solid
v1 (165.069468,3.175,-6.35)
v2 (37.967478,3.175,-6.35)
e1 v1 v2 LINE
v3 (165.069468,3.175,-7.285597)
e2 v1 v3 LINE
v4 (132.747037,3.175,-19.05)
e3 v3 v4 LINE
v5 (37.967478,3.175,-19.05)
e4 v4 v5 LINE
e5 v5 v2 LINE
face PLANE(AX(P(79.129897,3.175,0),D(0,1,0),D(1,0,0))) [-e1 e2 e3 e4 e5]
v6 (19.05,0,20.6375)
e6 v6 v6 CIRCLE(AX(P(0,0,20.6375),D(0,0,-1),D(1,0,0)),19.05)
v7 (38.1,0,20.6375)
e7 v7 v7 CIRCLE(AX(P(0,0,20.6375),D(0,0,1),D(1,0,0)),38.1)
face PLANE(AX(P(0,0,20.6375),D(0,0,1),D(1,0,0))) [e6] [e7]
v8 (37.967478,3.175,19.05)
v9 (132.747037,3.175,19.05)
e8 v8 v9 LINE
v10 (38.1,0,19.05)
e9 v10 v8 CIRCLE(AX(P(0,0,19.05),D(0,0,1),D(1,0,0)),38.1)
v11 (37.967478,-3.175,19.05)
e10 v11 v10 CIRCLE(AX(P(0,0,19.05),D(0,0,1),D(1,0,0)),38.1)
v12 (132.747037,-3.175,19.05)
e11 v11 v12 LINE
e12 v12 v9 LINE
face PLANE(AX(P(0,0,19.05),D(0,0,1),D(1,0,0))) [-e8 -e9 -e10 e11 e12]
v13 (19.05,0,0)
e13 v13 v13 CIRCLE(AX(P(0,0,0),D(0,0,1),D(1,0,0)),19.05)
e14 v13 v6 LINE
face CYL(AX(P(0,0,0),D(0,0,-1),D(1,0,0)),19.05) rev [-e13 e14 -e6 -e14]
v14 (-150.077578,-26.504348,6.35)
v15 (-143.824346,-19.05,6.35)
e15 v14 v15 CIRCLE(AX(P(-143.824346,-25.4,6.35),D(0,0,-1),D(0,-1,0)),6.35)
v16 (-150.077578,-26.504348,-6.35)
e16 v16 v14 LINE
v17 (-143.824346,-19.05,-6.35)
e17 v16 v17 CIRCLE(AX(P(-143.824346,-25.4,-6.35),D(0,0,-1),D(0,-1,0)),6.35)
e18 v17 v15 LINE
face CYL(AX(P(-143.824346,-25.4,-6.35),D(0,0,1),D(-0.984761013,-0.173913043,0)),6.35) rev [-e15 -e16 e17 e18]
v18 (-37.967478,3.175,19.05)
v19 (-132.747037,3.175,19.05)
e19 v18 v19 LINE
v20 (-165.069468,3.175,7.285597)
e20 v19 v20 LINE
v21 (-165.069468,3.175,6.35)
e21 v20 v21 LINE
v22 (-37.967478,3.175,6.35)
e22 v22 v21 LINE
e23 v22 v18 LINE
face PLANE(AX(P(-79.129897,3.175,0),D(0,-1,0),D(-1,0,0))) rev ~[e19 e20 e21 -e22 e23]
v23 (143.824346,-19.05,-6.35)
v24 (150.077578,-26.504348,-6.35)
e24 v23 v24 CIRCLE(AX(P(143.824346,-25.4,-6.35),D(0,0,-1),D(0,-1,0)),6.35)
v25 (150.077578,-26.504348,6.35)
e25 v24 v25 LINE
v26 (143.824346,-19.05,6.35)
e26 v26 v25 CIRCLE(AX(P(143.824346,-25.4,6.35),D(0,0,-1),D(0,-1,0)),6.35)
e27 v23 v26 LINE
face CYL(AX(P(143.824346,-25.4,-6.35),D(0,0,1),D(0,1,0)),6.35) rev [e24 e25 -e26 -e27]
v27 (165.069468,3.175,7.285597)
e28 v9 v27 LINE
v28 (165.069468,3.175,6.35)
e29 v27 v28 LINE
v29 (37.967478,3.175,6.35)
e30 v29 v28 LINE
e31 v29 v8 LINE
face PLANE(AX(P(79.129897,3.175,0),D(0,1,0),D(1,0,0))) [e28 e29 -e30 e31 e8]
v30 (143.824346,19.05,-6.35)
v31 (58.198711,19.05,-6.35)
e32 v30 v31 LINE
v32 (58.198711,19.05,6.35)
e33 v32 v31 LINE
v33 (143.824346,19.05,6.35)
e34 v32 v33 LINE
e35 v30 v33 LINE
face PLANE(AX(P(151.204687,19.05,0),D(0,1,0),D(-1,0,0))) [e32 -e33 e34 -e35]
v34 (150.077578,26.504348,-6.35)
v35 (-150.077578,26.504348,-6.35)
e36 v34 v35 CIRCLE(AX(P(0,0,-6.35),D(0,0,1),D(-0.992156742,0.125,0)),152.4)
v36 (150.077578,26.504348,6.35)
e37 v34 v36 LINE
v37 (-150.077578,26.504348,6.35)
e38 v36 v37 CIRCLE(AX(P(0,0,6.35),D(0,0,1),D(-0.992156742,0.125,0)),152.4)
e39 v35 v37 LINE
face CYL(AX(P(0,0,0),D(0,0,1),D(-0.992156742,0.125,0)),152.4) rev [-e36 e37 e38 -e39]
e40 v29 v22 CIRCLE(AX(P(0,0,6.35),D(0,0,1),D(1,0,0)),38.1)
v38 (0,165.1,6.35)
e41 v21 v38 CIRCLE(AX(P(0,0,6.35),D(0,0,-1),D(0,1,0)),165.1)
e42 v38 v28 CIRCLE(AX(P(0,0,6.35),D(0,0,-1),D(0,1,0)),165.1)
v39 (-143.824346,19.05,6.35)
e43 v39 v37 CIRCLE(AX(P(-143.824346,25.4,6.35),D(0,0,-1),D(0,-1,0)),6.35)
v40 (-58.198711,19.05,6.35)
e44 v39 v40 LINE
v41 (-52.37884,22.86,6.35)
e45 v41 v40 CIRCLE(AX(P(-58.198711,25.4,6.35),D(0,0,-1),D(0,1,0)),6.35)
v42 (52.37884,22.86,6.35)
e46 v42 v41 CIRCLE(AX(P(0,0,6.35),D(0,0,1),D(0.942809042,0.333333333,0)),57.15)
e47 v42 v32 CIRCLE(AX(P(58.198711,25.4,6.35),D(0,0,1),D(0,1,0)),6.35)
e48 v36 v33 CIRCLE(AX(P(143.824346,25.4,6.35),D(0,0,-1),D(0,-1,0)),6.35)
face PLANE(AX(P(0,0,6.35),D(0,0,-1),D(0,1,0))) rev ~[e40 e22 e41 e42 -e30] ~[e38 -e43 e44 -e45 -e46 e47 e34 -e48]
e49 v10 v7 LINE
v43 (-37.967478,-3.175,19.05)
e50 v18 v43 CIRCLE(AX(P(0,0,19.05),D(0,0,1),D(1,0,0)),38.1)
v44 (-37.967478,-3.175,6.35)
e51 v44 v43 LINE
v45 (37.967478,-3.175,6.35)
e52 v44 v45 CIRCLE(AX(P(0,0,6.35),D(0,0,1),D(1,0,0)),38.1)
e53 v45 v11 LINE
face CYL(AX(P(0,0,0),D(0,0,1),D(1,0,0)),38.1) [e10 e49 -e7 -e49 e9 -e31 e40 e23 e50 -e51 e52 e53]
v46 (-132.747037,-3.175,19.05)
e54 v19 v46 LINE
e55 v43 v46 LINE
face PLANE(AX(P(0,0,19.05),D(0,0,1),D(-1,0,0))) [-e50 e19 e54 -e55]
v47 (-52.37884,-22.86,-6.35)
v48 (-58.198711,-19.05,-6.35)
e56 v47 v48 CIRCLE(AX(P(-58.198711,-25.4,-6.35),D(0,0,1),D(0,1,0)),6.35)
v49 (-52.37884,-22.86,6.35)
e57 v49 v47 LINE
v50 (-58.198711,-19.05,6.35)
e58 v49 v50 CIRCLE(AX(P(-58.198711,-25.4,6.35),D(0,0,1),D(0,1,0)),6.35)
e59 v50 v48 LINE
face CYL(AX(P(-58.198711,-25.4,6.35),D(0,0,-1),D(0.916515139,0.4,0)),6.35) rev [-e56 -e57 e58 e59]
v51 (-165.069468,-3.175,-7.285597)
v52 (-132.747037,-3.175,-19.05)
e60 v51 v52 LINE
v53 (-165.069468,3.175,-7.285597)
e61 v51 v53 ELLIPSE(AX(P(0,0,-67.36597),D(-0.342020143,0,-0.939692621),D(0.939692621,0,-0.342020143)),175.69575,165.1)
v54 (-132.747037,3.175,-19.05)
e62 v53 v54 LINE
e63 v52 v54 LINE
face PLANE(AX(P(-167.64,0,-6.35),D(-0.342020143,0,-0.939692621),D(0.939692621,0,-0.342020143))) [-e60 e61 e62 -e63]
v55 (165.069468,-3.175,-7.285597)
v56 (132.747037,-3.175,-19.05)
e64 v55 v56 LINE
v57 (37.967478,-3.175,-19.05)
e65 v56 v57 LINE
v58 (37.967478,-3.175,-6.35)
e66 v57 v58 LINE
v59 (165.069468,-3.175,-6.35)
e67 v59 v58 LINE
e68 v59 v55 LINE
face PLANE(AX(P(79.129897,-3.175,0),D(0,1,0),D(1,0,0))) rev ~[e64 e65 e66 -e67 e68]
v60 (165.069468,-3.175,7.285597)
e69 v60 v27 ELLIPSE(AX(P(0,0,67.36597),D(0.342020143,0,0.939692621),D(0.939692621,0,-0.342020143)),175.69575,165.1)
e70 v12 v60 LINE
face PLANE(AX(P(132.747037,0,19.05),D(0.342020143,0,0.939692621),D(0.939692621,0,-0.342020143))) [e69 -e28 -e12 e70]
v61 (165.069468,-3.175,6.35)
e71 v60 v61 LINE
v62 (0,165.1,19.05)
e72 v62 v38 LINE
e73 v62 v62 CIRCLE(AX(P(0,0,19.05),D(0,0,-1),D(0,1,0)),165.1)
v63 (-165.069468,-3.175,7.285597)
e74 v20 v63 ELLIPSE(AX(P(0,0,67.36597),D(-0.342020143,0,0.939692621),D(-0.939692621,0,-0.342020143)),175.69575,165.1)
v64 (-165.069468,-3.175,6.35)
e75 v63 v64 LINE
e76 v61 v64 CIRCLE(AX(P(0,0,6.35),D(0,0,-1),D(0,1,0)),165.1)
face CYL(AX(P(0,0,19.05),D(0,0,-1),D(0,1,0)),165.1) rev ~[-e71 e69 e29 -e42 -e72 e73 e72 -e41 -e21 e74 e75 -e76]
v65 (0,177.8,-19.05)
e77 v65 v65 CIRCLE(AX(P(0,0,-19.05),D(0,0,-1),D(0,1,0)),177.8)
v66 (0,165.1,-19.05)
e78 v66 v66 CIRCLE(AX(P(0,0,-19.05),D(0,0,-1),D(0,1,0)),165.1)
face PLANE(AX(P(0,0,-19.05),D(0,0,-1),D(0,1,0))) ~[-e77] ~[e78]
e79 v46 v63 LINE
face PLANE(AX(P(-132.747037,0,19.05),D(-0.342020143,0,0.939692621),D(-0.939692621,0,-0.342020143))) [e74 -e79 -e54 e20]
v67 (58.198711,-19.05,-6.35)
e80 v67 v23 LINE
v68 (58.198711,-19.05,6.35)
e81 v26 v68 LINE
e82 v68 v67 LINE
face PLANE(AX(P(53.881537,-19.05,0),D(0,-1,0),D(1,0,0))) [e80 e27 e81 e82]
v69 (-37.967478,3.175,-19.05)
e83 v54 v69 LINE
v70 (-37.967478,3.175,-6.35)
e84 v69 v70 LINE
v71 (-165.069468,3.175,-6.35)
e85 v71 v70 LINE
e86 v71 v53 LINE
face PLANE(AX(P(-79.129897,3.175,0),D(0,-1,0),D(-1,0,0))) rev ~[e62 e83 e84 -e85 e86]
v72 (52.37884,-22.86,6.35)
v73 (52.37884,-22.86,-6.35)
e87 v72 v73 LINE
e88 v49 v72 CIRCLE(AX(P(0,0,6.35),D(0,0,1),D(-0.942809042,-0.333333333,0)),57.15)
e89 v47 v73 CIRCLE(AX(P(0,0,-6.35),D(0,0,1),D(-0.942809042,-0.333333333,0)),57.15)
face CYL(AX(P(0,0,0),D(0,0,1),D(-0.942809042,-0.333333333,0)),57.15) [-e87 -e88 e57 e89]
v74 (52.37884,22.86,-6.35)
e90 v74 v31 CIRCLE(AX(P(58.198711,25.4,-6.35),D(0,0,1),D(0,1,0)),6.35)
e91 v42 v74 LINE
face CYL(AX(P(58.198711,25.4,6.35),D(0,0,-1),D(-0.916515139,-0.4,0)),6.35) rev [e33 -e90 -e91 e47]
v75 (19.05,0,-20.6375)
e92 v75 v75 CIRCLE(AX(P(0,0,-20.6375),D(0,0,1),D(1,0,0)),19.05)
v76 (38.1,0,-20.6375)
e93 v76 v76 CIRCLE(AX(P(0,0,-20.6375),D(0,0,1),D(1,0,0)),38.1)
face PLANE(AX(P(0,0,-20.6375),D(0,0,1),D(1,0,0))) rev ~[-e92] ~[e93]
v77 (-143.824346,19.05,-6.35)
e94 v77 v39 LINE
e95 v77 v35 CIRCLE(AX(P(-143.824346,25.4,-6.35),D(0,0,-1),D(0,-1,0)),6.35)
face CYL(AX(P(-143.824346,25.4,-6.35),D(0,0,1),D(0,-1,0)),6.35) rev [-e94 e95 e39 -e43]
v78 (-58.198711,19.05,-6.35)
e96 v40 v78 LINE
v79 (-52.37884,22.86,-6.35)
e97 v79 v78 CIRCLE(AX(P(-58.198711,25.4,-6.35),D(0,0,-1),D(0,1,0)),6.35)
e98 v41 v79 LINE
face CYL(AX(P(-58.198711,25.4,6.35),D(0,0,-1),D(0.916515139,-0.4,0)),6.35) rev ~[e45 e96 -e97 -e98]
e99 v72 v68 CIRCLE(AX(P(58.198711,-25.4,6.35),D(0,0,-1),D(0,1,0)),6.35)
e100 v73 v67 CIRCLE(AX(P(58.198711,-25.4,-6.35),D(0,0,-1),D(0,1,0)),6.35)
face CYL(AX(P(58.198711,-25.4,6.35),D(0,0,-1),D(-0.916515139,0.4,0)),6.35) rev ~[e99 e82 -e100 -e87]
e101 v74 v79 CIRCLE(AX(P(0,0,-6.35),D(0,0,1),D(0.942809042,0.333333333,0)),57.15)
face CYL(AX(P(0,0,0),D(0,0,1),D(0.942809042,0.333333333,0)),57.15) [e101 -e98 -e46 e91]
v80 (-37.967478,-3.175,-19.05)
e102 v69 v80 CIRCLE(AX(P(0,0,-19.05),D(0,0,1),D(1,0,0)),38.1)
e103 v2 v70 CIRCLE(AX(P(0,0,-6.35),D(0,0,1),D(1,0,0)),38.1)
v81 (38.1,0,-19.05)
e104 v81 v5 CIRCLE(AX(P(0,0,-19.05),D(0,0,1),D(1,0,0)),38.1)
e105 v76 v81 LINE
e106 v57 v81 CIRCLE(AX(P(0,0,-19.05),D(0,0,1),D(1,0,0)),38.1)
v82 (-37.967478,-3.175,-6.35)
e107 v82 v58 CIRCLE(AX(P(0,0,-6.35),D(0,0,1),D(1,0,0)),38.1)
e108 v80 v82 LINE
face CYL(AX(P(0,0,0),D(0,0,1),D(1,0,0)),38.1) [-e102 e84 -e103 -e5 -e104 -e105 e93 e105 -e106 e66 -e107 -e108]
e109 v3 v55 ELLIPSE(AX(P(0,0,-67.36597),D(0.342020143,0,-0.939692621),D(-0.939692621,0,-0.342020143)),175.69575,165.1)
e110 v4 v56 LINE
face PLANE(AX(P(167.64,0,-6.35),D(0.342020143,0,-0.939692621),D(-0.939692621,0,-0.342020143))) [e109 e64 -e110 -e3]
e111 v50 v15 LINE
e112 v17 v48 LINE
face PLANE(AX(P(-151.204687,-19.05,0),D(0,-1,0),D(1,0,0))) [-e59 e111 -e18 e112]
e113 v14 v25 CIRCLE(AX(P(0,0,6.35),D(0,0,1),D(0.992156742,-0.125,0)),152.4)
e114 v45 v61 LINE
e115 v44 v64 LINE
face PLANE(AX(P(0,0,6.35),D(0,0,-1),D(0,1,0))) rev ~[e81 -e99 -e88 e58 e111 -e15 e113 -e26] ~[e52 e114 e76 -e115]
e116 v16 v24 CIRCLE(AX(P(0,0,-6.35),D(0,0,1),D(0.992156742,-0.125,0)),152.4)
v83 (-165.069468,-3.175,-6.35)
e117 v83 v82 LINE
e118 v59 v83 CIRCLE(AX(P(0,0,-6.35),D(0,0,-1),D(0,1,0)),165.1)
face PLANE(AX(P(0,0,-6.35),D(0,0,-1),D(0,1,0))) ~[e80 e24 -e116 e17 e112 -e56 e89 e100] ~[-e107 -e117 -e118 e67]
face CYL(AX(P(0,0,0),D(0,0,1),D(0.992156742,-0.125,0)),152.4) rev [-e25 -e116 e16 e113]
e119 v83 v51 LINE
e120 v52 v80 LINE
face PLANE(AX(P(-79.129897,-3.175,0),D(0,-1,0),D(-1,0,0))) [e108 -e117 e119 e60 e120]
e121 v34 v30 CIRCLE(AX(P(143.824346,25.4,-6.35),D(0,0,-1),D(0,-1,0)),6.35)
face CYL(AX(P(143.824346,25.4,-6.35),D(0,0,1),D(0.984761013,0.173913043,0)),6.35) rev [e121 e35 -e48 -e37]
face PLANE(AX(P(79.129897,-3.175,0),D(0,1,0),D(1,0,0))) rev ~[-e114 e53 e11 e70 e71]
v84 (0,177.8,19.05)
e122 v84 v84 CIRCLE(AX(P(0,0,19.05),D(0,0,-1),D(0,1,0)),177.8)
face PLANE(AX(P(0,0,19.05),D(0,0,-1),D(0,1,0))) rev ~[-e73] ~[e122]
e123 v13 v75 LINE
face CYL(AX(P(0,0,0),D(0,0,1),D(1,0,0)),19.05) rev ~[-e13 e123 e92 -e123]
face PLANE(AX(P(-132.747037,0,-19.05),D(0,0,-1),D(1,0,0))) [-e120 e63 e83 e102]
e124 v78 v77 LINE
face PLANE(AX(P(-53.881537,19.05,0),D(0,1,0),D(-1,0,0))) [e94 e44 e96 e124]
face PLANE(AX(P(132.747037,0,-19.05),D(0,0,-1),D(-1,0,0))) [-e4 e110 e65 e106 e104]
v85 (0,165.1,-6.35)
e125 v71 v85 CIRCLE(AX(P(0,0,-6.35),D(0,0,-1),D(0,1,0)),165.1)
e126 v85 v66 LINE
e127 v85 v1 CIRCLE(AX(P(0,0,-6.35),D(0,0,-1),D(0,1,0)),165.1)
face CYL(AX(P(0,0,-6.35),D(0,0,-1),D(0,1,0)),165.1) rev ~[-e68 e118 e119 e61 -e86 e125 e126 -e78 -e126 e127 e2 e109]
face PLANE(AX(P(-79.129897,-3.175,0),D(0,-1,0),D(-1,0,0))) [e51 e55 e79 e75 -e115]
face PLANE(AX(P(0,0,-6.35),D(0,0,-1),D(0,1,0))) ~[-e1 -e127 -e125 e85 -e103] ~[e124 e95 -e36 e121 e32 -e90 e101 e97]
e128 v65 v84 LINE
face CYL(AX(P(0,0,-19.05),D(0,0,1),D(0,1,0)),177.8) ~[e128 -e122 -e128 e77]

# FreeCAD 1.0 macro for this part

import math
import FreeCAD as App
import Part
import Sketcher

V = App.Vector
Q = App.Units.Quantity


def edges_at(feature, points):
    """Names of the edges that pass closest to the given points."""
    edges = feature.Shape.Edges
    near = lambda p: min(range(len(edges)), key=lambda i: edges[i].distToShape(Part.Vertex(*p))[0])
    return sorted({f"Edge{near(p) + 1}" for p in points})


def add_polygon(sketch, points):
    """Adds a closed chain of lines whose ends are joined by coincident constraints."""
    first, n = sketch.GeometryCount, len(points)
    for a, b in zip(points, points[1:] + points[:1]):
        sketch.addGeometry(Part.LineSegment(App.Vector(*a, 0), App.Vector(*b, 0)), False)
    for i in range(n):
        sketch.addConstraint(Sketcher.Constraint("Coincident", first + i, 2, first + (i + 1) % n, 1))

doc = App.newDocument("Part")
body = doc.addObject("PartDesign::Body", "Body")

# Sketch on XY plane
sketch1 = body.newObject("Sketcher::SketchObject", "Sketch")
sketch1.AttachmentSupport = (doc.getObject("XY_Plane"), [""])
sketch1.MapMode = "FlatFace"
sketch1.addGeometry(Part.Circle(V(0, 0, 0), V(0, 0, 1), 38), False)
sketch1.addConstraint([
    Sketcher.Constraint("Coincident", 0, 3, -1, 1),
    Sketcher.Constraint("Diameter", 0, Q("3 in")),
])
pad1 = body.newObject("PartDesign::Pad", "Pad")
pad1.Profile = sketch1
pad1.Length = Q("1.625 in")
pad1.Midplane = True

# Sketch on YZ plane
sketch2 = body.newObject("Sketcher::SketchObject", "Sketch001")
sketch2.AttachmentSupport = (doc.getObject("YZ_Plane"), [""])
sketch2.MapMode = "FlatFace"
add_polygon(sketch2, [(0, 6), (0, -6), (165, -6), (165, -19), (178, -19), (178, 19), (165, 19), (165, 6)])  # lines 0-7
sketch2.addConstraint([
    Sketcher.Constraint("Vertical", 0),
    Sketcher.Constraint("Horizontal", 1),
    Sketcher.Constraint("Vertical", 2),
    Sketcher.Constraint("Horizontal", 3),
    Sketcher.Constraint("Vertical", 4),
    Sketcher.Constraint("Horizontal", 5),
    Sketcher.Constraint("Vertical", 6),
    Sketcher.Constraint("Horizontal", 7),
    Sketcher.Constraint("Symmetric", 0, 2, 7, 2, -1, 1),
    Sketcher.Constraint("Symmetric", 2, 2, 5, 2, -1),
    Sketcher.Constraint("Equal", 5, 0),
    Sketcher.Constraint("Equal", 0, 2),
    Sketcher.Constraint("DistanceX", 1, 1, 1, 2, Q("6.5 in")),
    Sketcher.Constraint("DistanceX", 3, 1, 3, 2, Q("0.5 in")),
])
revolution = body.newObject("PartDesign::Revolution", "Revolution")
revolution.Profile = sketch2
revolution.ReferenceAxis = (sketch2, ["V_Axis"])
revolution.Angle = 360

# Sketch on XZ plane
sketch3 = body.newObject("Sketcher::SketchObject", "Sketch002")
sketch3.AttachmentSupport = (doc.getObject("XZ_Plane"), [""])
sketch3.MapMode = "FlatFace"
add_polygon(sketch3, [(0, 19), (133, 19), (168, 6), (168, -6), (133, -19), (0, -19)])  # lines 0-5
sketch3.addConstraint([
    Sketcher.Constraint("Horizontal", 0),
    Sketcher.Constraint("Vertical", 2),
    Sketcher.Constraint("Horizontal", 4),
    Sketcher.Constraint("Vertical", 5),
    Sketcher.Constraint("Symmetric", 4, 2, 5, 2, -1, 1),
    Sketcher.Constraint("Vertical", 0, 2, 3, 2),
    Sketcher.Constraint("Equal", 1, 3),
    Sketcher.Constraint("DistanceY", 2, 2, 2, 1, Q("0.5 in")),
    Sketcher.Constraint("DistanceY", 5, 1, 5, 2, Q("1.5 in")),
    Sketcher.Constraint("Angle", 1, Q("-20 deg")),
    Sketcher.Constraint("DistanceX", -1, 1, 1, 2, Q("6.6 in")),
])
pad2 = body.newObject("PartDesign::Pad", "Pad001")
pad2.Profile = sketch3
pad2.Length = Q("0.25 in")
pad2.Midplane = True

# Sketch on XY plane
sketch4 = body.newObject("Sketcher::SketchObject", "Sketch003")
sketch4.AttachmentSupport = (doc.getObject("XY_Plane"), [""])
sketch4.MapMode = "FlatFace"
sketch4.addGeometry([
    Part.LineSegment(V(-54, -19, 0), V(-151, -19, 0)),
    Part.ArcOfCircle(Part.Circle(V(0, 0, 0), V(0, 0, 1), 152), math.radians(-173), math.radians(-7)),
    Part.LineSegment(V(151, -19, 0), V(54, -19, 0)),
    Part.ArcOfCircle(Part.Circle(V(0, 0, 0), V(0, 0, 1), 57), math.radians(-161), math.radians(-19)),
], False)
sketch4.addConstraint([
    Sketcher.Constraint("Coincident", 0, 2, 1, 1),
    Sketcher.Constraint("Coincident", 1, 2, 2, 1),
    Sketcher.Constraint("Coincident", 2, 2, 3, 2),
    Sketcher.Constraint("Coincident", 3, 1, 0, 1),
    Sketcher.Constraint("Horizontal", 0),
    Sketcher.Constraint("Horizontal", 2),
    Sketcher.Constraint("Coincident", 1, 3, -1, 1),
    Sketcher.Constraint("Coincident", 3, 3, -1, 1),
    Sketcher.Constraint("Horizontal", 0, 2, 1, 2),
    Sketcher.Constraint("Radius", 1, Q("6 in")),
    Sketcher.Constraint("Radius", 3, Q("2.25 in")),
    Sketcher.Constraint("DistanceY", 0, 2, -1, 1, Q("0.75 in")),
])
pocket1 = body.newObject("PartDesign::Pocket", "Pocket")
pocket1.Profile = sketch4
pocket1.Length = 43.275
pocket1.Midplane = True
doc.recompute()

fillet = body.newObject("PartDesign::Fillet", "Fillet")
fillet.Base = (pocket1, edges_at(pocket1, [
    (151.205, -19.05, 0),
    (-151.205, -19.05, 0),
    (-53.882, -19.05, 0),
    (53.882, -19.05, 0),
]))
fillet.Radius = Q("0.25 in")
doc.recompute()

polarpattern = body.newObject("PartDesign::PolarPattern", "PolarPattern")
polarpattern.Originals = [pad2, pocket1]
polarpattern.Axis = (doc.getObject("Z_Axis"), [""])
polarpattern.Angle = 360
polarpattern.Occurrences = 2
body.Tip = polarpattern
doc.recompute()

fillet2 = body.newObject("PartDesign::Fillet", "Fillet001")
fillet2.Base = (polarpattern, edges_at(polarpattern, [
    (-151.205, 19.05, 0),
    (151.205, 19.05, 0),
    (53.882, 19.05, 0),
    (-53.882, 19.05, 0),
]))
fillet2.Radius = Q("0.25 in")

# Sketch on XY plane
sketch5 = body.newObject("Sketcher::SketchObject", "Sketch004")
sketch5.AttachmentSupport = (doc.getObject("XY_Plane"), [""])
sketch5.MapMode = "FlatFace"
sketch5.addGeometry(Part.Circle(V(0, 0, 0), V(0, 0, 1), 19), False)
sketch5.addConstraint([
    Sketcher.Constraint("Coincident", 0, 3, -1, 1),
    Sketcher.Constraint("Diameter", 0, Q("1.5 in")),
])
pocket2 = body.newObject("PartDesign::Pocket", "Pocket001")
pocket2.Profile = sketch5
pocket2.Type = "ThroughAll"
pocket2.Midplane = True

doc.recompute()
